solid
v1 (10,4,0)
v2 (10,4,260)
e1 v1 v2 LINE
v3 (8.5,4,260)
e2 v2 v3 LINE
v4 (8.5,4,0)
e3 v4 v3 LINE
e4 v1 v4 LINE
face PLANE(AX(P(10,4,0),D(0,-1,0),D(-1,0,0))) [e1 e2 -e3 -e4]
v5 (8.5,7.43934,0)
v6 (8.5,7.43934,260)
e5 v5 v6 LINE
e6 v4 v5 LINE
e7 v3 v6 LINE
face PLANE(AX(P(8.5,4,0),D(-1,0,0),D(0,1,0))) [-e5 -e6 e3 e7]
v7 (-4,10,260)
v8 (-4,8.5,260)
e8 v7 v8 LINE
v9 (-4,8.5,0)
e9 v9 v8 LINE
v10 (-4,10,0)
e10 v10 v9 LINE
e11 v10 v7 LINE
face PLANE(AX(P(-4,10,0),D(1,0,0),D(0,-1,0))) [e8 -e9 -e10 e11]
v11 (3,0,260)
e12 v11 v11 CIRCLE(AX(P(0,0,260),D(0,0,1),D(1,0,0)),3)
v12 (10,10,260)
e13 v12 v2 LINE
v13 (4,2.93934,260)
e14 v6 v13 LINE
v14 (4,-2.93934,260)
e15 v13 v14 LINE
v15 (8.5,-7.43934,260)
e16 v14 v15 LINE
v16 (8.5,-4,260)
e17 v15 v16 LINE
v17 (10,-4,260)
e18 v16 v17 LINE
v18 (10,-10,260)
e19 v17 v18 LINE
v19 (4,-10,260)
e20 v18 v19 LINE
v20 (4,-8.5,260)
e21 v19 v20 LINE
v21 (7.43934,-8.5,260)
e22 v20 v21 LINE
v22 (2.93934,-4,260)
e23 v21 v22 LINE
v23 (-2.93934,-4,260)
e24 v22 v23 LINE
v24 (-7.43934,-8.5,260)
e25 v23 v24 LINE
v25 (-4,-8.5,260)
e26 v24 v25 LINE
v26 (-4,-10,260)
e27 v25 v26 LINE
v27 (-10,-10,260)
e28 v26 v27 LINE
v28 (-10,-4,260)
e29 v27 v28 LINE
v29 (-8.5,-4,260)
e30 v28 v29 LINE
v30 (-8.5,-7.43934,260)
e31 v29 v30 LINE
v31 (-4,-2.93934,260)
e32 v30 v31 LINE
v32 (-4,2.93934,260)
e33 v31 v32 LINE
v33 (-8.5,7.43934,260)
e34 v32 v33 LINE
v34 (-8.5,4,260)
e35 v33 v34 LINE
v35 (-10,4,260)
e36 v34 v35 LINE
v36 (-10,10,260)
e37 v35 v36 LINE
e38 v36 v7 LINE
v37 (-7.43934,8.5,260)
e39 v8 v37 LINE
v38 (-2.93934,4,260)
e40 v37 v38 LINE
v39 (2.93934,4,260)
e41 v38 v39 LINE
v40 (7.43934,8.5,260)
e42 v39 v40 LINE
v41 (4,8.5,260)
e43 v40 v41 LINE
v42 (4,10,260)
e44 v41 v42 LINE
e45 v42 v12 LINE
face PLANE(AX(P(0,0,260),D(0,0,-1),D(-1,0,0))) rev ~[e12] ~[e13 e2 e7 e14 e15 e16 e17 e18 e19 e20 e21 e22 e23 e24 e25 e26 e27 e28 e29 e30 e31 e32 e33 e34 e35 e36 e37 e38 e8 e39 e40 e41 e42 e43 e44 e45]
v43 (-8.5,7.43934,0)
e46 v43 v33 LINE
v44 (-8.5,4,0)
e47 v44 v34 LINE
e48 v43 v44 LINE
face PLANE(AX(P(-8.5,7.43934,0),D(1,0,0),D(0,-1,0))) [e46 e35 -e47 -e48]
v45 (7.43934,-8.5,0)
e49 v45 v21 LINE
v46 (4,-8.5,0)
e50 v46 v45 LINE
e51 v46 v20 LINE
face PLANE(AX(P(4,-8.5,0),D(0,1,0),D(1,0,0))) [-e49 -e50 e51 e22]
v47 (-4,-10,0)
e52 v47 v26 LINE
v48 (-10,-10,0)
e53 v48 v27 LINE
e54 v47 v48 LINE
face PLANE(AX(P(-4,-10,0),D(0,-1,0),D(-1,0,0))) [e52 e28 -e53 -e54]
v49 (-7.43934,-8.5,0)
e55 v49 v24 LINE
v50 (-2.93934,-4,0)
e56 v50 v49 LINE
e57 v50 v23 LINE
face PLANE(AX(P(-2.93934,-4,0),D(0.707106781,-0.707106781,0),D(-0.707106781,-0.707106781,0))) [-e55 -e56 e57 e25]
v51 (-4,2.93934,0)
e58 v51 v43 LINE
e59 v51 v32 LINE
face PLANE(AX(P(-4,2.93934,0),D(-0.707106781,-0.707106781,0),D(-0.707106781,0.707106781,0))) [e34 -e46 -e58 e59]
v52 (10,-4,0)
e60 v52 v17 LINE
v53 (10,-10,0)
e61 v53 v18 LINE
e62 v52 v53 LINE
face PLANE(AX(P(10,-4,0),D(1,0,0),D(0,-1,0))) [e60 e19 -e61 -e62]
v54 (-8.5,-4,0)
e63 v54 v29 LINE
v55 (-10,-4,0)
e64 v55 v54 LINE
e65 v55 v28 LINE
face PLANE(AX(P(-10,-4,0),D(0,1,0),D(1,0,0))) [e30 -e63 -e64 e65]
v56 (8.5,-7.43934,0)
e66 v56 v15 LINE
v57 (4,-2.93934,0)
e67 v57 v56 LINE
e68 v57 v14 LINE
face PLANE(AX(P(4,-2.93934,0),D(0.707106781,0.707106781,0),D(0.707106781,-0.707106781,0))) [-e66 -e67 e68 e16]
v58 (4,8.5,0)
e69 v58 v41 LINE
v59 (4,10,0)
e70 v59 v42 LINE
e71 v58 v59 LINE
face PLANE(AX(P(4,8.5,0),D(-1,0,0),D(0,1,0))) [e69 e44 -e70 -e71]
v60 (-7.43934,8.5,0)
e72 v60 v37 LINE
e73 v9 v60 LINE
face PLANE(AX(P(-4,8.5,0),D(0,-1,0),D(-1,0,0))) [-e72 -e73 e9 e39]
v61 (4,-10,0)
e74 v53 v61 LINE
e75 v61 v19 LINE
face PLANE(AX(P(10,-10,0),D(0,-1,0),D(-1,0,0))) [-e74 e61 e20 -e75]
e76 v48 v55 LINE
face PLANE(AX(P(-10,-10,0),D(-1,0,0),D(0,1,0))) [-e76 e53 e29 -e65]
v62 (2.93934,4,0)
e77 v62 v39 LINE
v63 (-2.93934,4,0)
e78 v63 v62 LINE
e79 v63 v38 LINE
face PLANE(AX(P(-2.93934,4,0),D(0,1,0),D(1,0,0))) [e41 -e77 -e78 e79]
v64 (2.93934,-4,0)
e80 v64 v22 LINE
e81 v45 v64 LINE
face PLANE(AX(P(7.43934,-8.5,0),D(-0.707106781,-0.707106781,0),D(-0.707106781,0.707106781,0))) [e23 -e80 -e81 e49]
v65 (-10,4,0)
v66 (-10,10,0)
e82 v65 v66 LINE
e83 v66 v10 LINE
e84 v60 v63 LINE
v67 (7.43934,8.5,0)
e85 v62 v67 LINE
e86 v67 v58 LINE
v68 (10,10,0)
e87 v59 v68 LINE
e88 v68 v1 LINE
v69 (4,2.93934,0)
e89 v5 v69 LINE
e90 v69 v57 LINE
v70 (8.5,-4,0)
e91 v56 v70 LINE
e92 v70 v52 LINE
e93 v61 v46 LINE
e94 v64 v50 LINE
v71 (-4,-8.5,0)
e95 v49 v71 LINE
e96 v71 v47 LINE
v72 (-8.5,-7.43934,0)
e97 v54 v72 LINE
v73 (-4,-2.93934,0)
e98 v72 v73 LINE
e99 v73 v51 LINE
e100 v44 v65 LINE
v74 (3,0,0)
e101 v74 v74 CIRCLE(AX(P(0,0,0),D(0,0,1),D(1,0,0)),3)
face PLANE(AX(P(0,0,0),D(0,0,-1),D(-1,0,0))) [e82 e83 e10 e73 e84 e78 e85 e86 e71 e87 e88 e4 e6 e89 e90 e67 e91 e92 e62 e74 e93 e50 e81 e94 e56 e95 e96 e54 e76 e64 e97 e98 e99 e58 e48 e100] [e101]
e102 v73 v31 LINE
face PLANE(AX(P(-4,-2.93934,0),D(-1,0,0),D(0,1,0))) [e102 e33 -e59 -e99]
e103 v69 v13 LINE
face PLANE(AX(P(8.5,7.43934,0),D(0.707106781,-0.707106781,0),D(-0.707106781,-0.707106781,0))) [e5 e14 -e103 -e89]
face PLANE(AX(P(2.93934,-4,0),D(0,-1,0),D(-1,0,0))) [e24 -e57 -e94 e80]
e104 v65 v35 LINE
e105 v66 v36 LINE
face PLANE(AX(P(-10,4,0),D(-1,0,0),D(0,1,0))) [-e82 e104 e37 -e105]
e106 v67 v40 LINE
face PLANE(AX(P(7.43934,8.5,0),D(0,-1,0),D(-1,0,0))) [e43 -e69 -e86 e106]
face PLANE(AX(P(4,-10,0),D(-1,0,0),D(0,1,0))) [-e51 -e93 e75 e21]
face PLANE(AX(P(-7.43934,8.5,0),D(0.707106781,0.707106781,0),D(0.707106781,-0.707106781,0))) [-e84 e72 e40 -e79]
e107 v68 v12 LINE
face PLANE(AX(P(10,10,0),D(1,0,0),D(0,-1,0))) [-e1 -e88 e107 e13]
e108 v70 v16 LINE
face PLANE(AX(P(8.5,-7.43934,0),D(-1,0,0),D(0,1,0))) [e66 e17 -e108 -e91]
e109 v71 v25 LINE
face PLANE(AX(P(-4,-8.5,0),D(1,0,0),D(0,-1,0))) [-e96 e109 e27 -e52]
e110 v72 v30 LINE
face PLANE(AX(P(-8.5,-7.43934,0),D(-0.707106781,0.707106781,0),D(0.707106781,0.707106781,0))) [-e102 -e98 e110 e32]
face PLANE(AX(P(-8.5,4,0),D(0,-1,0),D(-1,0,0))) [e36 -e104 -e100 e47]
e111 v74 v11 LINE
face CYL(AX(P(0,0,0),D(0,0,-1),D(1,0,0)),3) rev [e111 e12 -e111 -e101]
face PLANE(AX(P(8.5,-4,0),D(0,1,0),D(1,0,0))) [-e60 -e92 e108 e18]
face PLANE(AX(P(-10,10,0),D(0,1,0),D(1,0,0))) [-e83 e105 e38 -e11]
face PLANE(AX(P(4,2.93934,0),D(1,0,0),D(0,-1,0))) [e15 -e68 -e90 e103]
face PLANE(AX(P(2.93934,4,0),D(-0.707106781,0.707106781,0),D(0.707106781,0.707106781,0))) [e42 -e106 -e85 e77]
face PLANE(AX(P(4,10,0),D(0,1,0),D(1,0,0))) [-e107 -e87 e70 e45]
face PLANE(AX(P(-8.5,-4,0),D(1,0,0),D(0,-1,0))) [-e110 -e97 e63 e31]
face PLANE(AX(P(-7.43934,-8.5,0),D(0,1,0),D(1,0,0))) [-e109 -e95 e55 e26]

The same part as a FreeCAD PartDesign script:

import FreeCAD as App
import Part
import Sketcher

doc = App.newDocument("Part")
params = doc.addObject("Spreadsheet::Sheet", "Params")
for row, (alias, value) in enumerate([
    ("sketch1_diameter", "6 mm"),
    ("sketch1_width", "6 mm"),
    ("sketch1_width2", "1.5 mm"),
    ("pad1_length", "260 mm"),
], start=1):
    params.set(f"A{row}", alias)
    params.set(f"B{row}", "=" + value)
    params.setAlias(f"B{row}", alias)

body = doc.addObject("PartDesign::Body", "Body")

# Sketch on XY plane
sketch1 = body.newObject("Sketcher::SketchObject", "Sketch")
sketch1.AttachmentSupport = (doc.getObject("XY_Plane"), [""])
sketch1.MapMode = "FlatFace"
sketch1.addGeometry([
    Part.LineSegment(App.Vector(2.93934, 4, 0), App.Vector(-2.93934, 4, 0)),  # 0
    Part.LineSegment(App.Vector(-2.93934, 4, 0), App.Vector(-7.43934, 8.5, 0)),  # 1
    Part.LineSegment(App.Vector(-7.43934, 8.5, 0), App.Vector(-4, 8.5, 0)),  # 2
    Part.LineSegment(App.Vector(-4, 8.5, 0), App.Vector(-4, 10, 0)),  # 3
    Part.LineSegment(App.Vector(-4, 10, 0), App.Vector(-10, 10, 0)),  # 4
    Part.LineSegment(App.Vector(-10, 10, 0), App.Vector(-10, 4, 0)),  # 5
    Part.LineSegment(App.Vector(-10, 4, 0), App.Vector(-8.5, 4, 0)),  # 6
    Part.LineSegment(App.Vector(-8.5, 4, 0), App.Vector(-8.5, 7.43934, 0)),  # 7
    Part.LineSegment(App.Vector(-8.5, 7.43934, 0), App.Vector(-4, 2.93934, 0)),  # 8
    Part.LineSegment(App.Vector(-4, 2.93934, 0), App.Vector(-4, -2.93934, 0)),  # 9
    Part.LineSegment(App.Vector(-4, -2.93934, 0), App.Vector(-8.5, -7.43934, 0)),  # 10
    Part.LineSegment(App.Vector(-8.5, -7.43934, 0), App.Vector(-8.5, -4, 0)),  # 11
    Part.LineSegment(App.Vector(-8.5, -4, 0), App.Vector(-10, -4, 0)),  # 12
    Part.LineSegment(App.Vector(-10, -4, 0), App.Vector(-10, -10, 0)),  # 13
    Part.LineSegment(App.Vector(-10, -10, 0), App.Vector(-4, -10, 0)),  # 14
    Part.LineSegment(App.Vector(-4, -10, 0), App.Vector(-4, -8.5, 0)),  # 15
    Part.LineSegment(App.Vector(-4, -8.5, 0), App.Vector(-7.43934, -8.5, 0)),  # 16
    Part.LineSegment(App.Vector(-7.43934, -8.5, 0), App.Vector(-2.93934, -4, 0)),  # 17
    Part.LineSegment(App.Vector(-2.93934, -4, 0), App.Vector(2.93934, -4, 0)),  # 18
    Part.LineSegment(App.Vector(2.93934, -4, 0), App.Vector(7.43934, -8.5, 0)),  # 19
    Part.LineSegment(App.Vector(7.43934, -8.5, 0), App.Vector(4, -8.5, 0)),  # 20
    Part.LineSegment(App.Vector(4, -8.5, 0), App.Vector(4, -10, 0)),  # 21
    Part.LineSegment(App.Vector(4, -10, 0), App.Vector(10, -10, 0)),  # 22
    Part.LineSegment(App.Vector(10, -10, 0), App.Vector(10, -4, 0)),  # 23
    Part.LineSegment(App.Vector(10, -4, 0), App.Vector(8.5, -4, 0)),  # 24
    Part.LineSegment(App.Vector(8.5, -4, 0), App.Vector(8.5, -7.43934, 0)),  # 25
    Part.LineSegment(App.Vector(8.5, -7.43934, 0), App.Vector(4, -2.93934, 0)),  # 26
    Part.LineSegment(App.Vector(4, -2.93934, 0), App.Vector(4, 2.93934, 0)),  # 27
    Part.LineSegment(App.Vector(4, 2.93934, 0), App.Vector(8.5, 7.43934, 0)),  # 28
    Part.LineSegment(App.Vector(8.5, 7.43934, 0), App.Vector(8.5, 4, 0)),  # 29
    Part.LineSegment(App.Vector(8.5, 4, 0), App.Vector(10, 4, 0)),  # 30
    Part.LineSegment(App.Vector(10, 4, 0), App.Vector(10, 10, 0)),  # 31
    Part.LineSegment(App.Vector(10, 10, 0), App.Vector(4, 10, 0)),  # 32
    Part.LineSegment(App.Vector(4, 10, 0), App.Vector(4, 8.5, 0)),  # 33
    Part.LineSegment(App.Vector(4, 8.5, 0), App.Vector(7.43934, 8.5, 0)),  # 34
    Part.LineSegment(App.Vector(7.43934, 8.5, 0), App.Vector(2.93934, 4, 0)),  # 35
    Part.Circle(App.Vector(0, 0, 0), App.Vector(0, 0, 1), 3),  # 36
], False)
sketch1.addConstraint([
    Sketcher.Constraint("Coincident", 0, 2, 1, 1),
    Sketcher.Constraint("Coincident", 1, 2, 2, 1),
    Sketcher.Constraint("Coincident", 2, 2, 3, 1),
    Sketcher.Constraint("Coincident", 3, 2, 4, 1),
    Sketcher.Constraint("Coincident", 4, 2, 5, 1),
    Sketcher.Constraint("Coincident", 5, 2, 6, 1),
    Sketcher.Constraint("Coincident", 6, 2, 7, 1),
    Sketcher.Constraint("Coincident", 7, 2, 8, 1),
    Sketcher.Constraint("Coincident", 8, 2, 9, 1),
    Sketcher.Constraint("Coincident", 9, 2, 10, 1),
    Sketcher.Constraint("Coincident", 10, 2, 11, 1),
    Sketcher.Constraint("Coincident", 11, 2, 12, 1),
    Sketcher.Constraint("Coincident", 12, 2, 13, 1),
    Sketcher.Constraint("Coincident", 13, 2, 14, 1),
    Sketcher.Constraint("Coincident", 14, 2, 15, 1),
    Sketcher.Constraint("Coincident", 15, 2, 16, 1),
    Sketcher.Constraint("Coincident", 16, 2, 17, 1),
    Sketcher.Constraint("Coincident", 17, 2, 18, 1),
    Sketcher.Constraint("Coincident", 18, 2, 19, 1),
    Sketcher.Constraint("Coincident", 19, 2, 20, 1),
    Sketcher.Constraint("Coincident", 20, 2, 21, 1),
    Sketcher.Constraint("Coincident", 21, 2, 22, 1),
    Sketcher.Constraint("Coincident", 22, 2, 23, 1),
    Sketcher.Constraint("Coincident", 23, 2, 24, 1),
    Sketcher.Constraint("Coincident", 24, 2, 25, 1),
    Sketcher.Constraint("Coincident", 25, 2, 26, 1),
    Sketcher.Constraint("Coincident", 26, 2, 27, 1),
    Sketcher.Constraint("Coincident", 27, 2, 28, 1),
    Sketcher.Constraint("Coincident", 28, 2, 29, 1),
    Sketcher.Constraint("Coincident", 29, 2, 30, 1),
    Sketcher.Constraint("Coincident", 30, 2, 31, 1),
    Sketcher.Constraint("Coincident", 31, 2, 32, 1),
    Sketcher.Constraint("Coincident", 32, 2, 33, 1),
    Sketcher.Constraint("Coincident", 33, 2, 34, 1),
    Sketcher.Constraint("Coincident", 34, 2, 35, 1),
    Sketcher.Constraint("Coincident", 35, 2, 0, 1),
    Sketcher.Constraint("Horizontal", 0),
    Sketcher.Constraint("Horizontal", 2),
    Sketcher.Constraint("Vertical", 3),
    Sketcher.Constraint("Horizontal", 4),
    Sketcher.Constraint("Vertical", 5),
    Sketcher.Constraint("Horizontal", 6),
    Sketcher.Constraint("Vertical", 7),
    Sketcher.Constraint("Vertical", 9),
    Sketcher.Constraint("Vertical", 11),
    Sketcher.Constraint("Horizontal", 12),
    Sketcher.Constraint("Vertical", 13),
    Sketcher.Constraint("Horizontal", 14),
    Sketcher.Constraint("Vertical", 15),
    Sketcher.Constraint("Horizontal", 16),
    Sketcher.Constraint("Horizontal", 18),
    Sketcher.Constraint("Horizontal", 20),
    Sketcher.Constraint("Vertical", 21),
    Sketcher.Constraint("Horizontal", 22),
    Sketcher.Constraint("Vertical", 23),
    Sketcher.Constraint("Horizontal", 24),
    Sketcher.Constraint("Vertical", 25),
    Sketcher.Constraint("Vertical", 27),
    Sketcher.Constraint("Vertical", 29),
    Sketcher.Constraint("Horizontal", 30),
    Sketcher.Constraint("Vertical", 31),
    Sketcher.Constraint("Horizontal", 32),
    Sketcher.Constraint("Vertical", 33),
    Sketcher.Constraint("Horizontal", 34),
    Sketcher.Constraint("Coincident", 36, 3, -1, 1),
    Sketcher.Constraint("Symmetric", 0, 2, 18, 2, -1, 1),
    Sketcher.Constraint("Symmetric", 1, 2, 19, 2, -1, 1),
    Sketcher.Constraint("Symmetric", 3, 2, 21, 2, -1, 1),
    Sketcher.Constraint("Symmetric", 5, 2, 23, 2, -1, 1),
    Sketcher.Constraint("Symmetric", 7, 2, 25, 2, -1, 1),
    Sketcher.Constraint("Symmetric", 8, 2, 26, 2, -1, 1),
    Sketcher.Constraint("Symmetric", 10, 2, 28, 2, -1, 1),
    Sketcher.Constraint("Symmetric", 12, 2, 30, 2, -1, 1),
    Sketcher.Constraint("Symmetric", 14, 2, 32, 2, -1, 1),
    Sketcher.Constraint("Symmetric", 16, 2, 34, 2, -1, 1),
    Sketcher.Constraint("Symmetric", 16, 2, 19, 2, -2),
    Sketcher.Constraint("Symmetric", 14, 2, 21, 2, -2),
    Sketcher.Constraint("Symmetric", 12, 2, 23, 2, -2),
    Sketcher.Constraint("Symmetric", 10, 2, 25, 2, -2),
    Sketcher.Constraint("Parallel", 1, 8),
    Sketcher.Constraint("Perpendicular", 8, 10),
    Sketcher.Constraint("Parallel", 10, 17),
    Sketcher.Constraint("Perpendicular", 26, 28),
    Sketcher.Constraint("Parallel", 28, 35),
    Sketcher.Constraint("Horizontal", 0, 2, 5, 2),
    Sketcher.Constraint("Horizontal", 9, 2, 26, 2),
    Sketcher.Constraint("Vertical", 3, 2, 8, 2),
    Sketcher.Constraint("Equal", 30, 3),
    Sketcher.Constraint("Equal", 32, 5),
    Sketcher.Constraint("Equal", 34, 7),
    Sketcher.Constraint("Equal", 18, 9),
    Sketcher.Constraint("Diameter", 36, 6.0),
    Sketcher.Constraint("DistanceX", 4, 2, 4, 1, 6.0),
    Sketcher.Constraint("DistanceX", 6, 1, 6, 2, 1.5),
    Sketcher.Constraint("DistanceY", -1, 1, 0, 2, 4.0),
    Sketcher.Constraint("DistanceX", 0, 2, 0, 1, 5.87868),
])
sketch1.setExpression("Constraints[91]", "Params.sketch1_diameter")
sketch1.setExpression("Constraints[92]", "Params.sketch1_width")
sketch1.setExpression("Constraints[93]", "Params.sketch1_width2")
pad1 = body.newObject("PartDesign::Pad", "Pad")
pad1.Profile = sketch1
pad1.setExpression("Length", "Params.pad1_length")

doc.recompute()
